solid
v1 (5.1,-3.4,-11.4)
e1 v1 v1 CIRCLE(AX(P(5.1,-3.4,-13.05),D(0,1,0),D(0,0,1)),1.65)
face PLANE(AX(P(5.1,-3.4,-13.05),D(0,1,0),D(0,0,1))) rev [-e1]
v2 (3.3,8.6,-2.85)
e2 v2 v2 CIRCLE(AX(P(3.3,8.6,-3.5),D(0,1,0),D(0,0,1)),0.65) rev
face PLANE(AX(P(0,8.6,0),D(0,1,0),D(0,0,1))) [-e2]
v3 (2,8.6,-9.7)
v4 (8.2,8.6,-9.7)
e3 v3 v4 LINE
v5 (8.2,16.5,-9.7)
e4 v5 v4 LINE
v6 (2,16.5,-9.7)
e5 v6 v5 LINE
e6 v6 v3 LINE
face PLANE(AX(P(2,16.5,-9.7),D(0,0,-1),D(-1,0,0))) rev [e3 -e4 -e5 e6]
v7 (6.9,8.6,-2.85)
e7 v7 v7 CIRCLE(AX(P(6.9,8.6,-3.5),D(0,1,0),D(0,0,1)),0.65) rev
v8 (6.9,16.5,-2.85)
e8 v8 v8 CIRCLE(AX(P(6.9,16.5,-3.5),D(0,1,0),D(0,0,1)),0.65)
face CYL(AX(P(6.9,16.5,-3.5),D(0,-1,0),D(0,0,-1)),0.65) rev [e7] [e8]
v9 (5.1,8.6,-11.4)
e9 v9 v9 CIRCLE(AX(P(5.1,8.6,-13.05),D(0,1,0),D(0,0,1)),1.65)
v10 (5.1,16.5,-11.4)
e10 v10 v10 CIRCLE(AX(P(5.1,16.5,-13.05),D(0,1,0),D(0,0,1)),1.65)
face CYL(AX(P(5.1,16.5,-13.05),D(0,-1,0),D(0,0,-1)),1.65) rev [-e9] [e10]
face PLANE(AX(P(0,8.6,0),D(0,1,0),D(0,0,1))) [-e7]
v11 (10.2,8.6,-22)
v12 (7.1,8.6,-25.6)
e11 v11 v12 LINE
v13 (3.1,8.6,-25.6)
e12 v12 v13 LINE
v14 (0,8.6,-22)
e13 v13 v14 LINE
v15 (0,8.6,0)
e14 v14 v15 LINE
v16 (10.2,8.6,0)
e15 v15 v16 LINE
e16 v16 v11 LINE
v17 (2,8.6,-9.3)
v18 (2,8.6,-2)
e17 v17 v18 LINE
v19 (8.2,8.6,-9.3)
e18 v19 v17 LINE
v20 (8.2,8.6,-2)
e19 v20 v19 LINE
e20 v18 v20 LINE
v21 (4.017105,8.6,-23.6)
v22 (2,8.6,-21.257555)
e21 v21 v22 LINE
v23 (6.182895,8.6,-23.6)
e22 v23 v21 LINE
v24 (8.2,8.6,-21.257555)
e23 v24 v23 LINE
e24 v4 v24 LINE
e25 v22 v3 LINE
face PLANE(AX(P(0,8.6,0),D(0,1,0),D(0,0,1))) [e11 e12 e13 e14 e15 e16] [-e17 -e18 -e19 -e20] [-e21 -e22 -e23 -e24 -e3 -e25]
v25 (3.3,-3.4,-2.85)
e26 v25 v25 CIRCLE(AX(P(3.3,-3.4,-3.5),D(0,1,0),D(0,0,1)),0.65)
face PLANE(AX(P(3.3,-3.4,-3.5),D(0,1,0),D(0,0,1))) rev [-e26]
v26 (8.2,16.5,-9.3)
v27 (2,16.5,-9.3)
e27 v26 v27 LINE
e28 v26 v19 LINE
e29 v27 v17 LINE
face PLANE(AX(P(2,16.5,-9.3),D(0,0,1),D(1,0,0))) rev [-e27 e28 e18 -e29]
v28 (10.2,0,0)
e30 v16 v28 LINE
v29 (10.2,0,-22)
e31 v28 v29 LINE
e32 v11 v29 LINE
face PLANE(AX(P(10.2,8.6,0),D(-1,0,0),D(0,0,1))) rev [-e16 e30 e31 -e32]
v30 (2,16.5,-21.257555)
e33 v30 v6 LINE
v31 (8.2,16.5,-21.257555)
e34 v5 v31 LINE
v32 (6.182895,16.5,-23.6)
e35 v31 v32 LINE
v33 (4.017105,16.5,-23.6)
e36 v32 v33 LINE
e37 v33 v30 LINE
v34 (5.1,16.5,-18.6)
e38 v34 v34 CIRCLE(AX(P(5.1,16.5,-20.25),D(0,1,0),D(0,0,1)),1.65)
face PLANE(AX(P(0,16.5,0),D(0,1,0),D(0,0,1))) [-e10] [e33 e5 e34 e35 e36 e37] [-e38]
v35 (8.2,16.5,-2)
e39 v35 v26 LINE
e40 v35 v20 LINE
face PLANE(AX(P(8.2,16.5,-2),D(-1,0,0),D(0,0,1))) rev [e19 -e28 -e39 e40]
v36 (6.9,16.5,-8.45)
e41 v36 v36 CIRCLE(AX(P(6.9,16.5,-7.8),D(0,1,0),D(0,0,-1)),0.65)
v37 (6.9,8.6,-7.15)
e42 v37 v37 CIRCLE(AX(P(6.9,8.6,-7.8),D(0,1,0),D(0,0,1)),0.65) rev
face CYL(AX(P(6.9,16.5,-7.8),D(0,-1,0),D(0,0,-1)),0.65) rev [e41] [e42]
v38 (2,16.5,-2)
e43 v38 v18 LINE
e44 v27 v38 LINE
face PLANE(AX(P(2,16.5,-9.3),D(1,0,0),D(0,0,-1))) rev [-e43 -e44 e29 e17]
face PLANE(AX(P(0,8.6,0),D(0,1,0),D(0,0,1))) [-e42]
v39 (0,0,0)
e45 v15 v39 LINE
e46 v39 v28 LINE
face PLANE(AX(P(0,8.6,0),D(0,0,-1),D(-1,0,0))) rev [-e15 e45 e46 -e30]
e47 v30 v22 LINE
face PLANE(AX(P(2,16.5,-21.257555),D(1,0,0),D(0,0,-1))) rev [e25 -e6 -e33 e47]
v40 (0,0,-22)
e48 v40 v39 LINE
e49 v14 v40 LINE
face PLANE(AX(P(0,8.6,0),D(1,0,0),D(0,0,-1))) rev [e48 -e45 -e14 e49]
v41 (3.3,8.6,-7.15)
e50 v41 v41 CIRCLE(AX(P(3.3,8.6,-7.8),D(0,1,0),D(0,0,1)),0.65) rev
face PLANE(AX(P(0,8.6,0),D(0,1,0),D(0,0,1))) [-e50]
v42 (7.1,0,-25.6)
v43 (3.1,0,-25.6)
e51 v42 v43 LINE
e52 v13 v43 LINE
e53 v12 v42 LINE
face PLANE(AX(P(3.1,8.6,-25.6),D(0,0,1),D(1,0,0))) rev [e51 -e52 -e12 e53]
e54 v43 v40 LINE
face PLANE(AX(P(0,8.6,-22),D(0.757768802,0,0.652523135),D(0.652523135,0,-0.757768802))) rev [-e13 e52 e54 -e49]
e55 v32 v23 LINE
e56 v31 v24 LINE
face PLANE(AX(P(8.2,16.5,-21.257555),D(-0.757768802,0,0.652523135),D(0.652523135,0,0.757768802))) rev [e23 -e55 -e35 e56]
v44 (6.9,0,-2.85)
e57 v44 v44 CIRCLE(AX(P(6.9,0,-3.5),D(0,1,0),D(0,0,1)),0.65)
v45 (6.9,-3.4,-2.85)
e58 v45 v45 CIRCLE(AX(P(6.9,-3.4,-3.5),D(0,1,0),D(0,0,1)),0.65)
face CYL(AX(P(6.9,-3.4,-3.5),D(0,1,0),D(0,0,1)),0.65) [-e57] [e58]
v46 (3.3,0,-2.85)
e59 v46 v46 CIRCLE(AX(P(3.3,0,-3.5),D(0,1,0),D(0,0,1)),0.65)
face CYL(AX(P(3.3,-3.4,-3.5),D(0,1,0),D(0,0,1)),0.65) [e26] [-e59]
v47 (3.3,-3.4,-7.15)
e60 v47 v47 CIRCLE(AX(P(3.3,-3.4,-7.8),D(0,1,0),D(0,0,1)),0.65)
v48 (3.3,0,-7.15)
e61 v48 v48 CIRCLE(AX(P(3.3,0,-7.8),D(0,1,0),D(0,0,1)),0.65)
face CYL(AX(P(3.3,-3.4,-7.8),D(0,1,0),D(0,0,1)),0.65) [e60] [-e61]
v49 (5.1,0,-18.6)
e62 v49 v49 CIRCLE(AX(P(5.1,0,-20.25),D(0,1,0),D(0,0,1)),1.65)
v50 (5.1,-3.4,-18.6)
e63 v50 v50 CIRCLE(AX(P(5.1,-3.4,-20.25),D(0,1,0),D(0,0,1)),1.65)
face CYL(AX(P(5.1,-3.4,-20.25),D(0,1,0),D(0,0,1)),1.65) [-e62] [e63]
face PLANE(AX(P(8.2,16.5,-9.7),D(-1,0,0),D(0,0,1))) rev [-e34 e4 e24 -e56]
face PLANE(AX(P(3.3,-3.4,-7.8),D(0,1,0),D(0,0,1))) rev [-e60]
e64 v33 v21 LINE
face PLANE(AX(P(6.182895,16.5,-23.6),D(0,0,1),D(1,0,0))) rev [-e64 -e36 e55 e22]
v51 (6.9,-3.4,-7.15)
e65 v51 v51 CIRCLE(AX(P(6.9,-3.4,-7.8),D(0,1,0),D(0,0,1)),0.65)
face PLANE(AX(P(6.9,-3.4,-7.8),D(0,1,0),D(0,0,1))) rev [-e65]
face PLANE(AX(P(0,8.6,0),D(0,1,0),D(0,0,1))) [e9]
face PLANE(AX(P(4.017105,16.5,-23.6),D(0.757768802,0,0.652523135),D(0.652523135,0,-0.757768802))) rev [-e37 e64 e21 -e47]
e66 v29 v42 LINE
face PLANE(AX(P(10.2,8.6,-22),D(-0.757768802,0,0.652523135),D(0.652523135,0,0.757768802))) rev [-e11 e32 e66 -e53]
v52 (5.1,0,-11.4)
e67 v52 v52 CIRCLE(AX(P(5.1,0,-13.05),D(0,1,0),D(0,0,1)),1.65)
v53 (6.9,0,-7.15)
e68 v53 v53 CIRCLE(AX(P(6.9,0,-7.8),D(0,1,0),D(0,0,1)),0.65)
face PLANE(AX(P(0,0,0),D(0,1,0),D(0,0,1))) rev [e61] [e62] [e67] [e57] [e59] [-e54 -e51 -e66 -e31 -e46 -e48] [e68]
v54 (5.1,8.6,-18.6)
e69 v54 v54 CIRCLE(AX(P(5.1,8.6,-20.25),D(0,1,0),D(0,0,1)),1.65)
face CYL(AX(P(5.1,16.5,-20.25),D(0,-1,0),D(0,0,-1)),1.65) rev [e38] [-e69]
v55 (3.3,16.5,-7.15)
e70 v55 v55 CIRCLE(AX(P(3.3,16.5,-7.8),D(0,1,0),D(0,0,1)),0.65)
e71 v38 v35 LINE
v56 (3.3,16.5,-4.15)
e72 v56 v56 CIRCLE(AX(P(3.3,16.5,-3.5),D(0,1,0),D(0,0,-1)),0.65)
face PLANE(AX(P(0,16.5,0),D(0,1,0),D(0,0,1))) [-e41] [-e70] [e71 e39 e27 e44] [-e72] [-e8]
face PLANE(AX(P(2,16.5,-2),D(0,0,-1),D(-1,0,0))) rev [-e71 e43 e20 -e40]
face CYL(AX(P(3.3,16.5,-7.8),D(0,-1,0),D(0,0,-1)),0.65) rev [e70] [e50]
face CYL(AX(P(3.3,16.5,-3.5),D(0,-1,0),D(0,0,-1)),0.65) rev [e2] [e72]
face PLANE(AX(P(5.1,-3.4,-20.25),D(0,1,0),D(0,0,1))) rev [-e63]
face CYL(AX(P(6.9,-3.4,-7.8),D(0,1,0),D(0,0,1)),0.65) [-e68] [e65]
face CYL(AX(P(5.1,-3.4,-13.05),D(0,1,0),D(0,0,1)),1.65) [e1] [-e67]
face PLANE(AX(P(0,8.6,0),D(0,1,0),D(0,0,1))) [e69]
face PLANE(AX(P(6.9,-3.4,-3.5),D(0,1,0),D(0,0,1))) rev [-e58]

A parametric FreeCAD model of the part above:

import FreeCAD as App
import Part
import Sketcher
Q = App.Units.Quantity

doc = App.newDocument("Part")
body = doc.addObject("PartDesign::Body", "Body")

# Sketch on XZ plane
sketch1 = body.newObject("Sketcher::SketchObject", "Sketch")
sketch1.AttachmentSupport = (doc.getObject("XZ_Plane"), [""])
sketch1.MapMode = "FlatFace"
sketch1.addGeometry([
    Part.LineSegment(App.Vector(0, -22, 0), App.Vector(0, 0, 0)),  # 0
    Part.LineSegment(App.Vector(0, 0, 0), App.Vector(10.2, 0, 0)),  # 1
    Part.LineSegment(App.Vector(10.2, 0, 0), App.Vector(10.2, -22, 0)),  # 2
    Part.LineSegment(App.Vector(10.2, -22, 0), App.Vector(7.1, -25.6, 0)),  # 3
    Part.LineSegment(App.Vector(7.1, -25.6, 0), App.Vector(3.1, -25.6, 0)),  # 4
    Part.LineSegment(App.Vector(3.1, -25.6, 0), App.Vector(0, -22, 0)),  # 5
], False)
sketch1.addConstraint([
    Sketcher.Constraint("Coincident", 0, 2, 1, 1),
    Sketcher.Constraint("Coincident", 1, 2, 2, 1),
    Sketcher.Constraint("Coincident", 2, 2, 3, 1),
    Sketcher.Constraint("Coincident", 3, 2, 4, 1),
    Sketcher.Constraint("Coincident", 4, 2, 5, 1),
    Sketcher.Constraint("Coincident", 5, 2, 0, 1),
    Sketcher.Constraint("Vertical", 0),
    Sketcher.Constraint("Horizontal", 1),
    Sketcher.Constraint("Vertical", 2),
    Sketcher.Constraint("Horizontal", 4),
    Sketcher.Constraint("Coincident", 0, 2, -1, 1),
    Sketcher.Constraint("Horizontal", 2, 2, 5, 2),
    Sketcher.Constraint("Equal", 3, 5),
    Sketcher.Constraint("DistanceX", 4, 2, 4, 1, Q("4 mm")),
    Sketcher.Constraint("DistanceY", 0, 1, 0, 2, Q("22 mm")),
    Sketcher.Constraint("DistanceX", 1, 1, 1, 2, Q("10.2 mm")),
    Sketcher.Constraint("DistanceY", 3, 2, -1, 1, Q("25.6 mm")),
])
pad1 = body.newObject("PartDesign::Pad", "Pad")
pad1.Profile = sketch1
pad1.Length = 8.6
pad1.Reversed = True

# Sketch on XZ plane
sketch2 = body.newObject("Sketcher::SketchObject", "Sketch001")
sketch2.AttachmentSupport = (doc.getObject("XZ_Plane"), [""])
sketch2.MapMode = "FlatFace"
sketch2.AttachmentOffset = App.Placement(App.Vector(0, 0, -8.6), App.Rotation())
sketch2.addGeometry([
    Part.LineSegment(App.Vector(2, -9.7, 0), App.Vector(8.2, -9.7, 0)),  # 0
    Part.LineSegment(App.Vector(8.2, -9.7, 0), App.Vector(8.2, -21.3, 0)),  # 1
    Part.LineSegment(App.Vector(8.2, -21.3, 0), App.Vector(6.2, -23.6, 0)),  # 2
    Part.LineSegment(App.Vector(6.2, -23.6, 0), App.Vector(4, -23.6, 0)),  # 3
    Part.LineSegment(App.Vector(4, -23.6, 0), App.Vector(2, -21.3, 0)),  # 4
    Part.LineSegment(App.Vector(2, -21.3, 0), App.Vector(2, -9.7, 0)),  # 5
    Part.Circle(App.Vector(5.1, -13.1, 0), App.Vector(0, 0, 1), 1.6),  # 6
    Part.Circle(App.Vector(5.1, -20.2, 0), App.Vector(0, 0, 1), 1.6),  # 7
    Part.LineSegment(App.Vector(2, -9.3, 0), App.Vector(2, -2, 0)),  # 8
    Part.LineSegment(App.Vector(2, -2, 0), App.Vector(8.2, -2, 0)),  # 9
    Part.LineSegment(App.Vector(8.2, -2, 0), App.Vector(8.2, -9.3, 0)),  # 10
    Part.LineSegment(App.Vector(8.2, -9.3, 0), App.Vector(2, -9.3, 0)),  # 11
    Part.Circle(App.Vector(3.3, -3.5, 0), App.Vector(0, 0, 1), 0.7),  # 12
    Part.Circle(App.Vector(6.9, -3.5, 0), App.Vector(0, 0, 1), 0.7),  # 13
    Part.Circle(App.Vector(3.3, -7.8, 0), App.Vector(0, 0, 1), 0.7),  # 14
    Part.Circle(App.Vector(6.9, -7.8, 0), App.Vector(0, 0, 1), 0.7),  # 15
], False)
sketch2.addConstraint([
    Sketcher.Constraint("Coincident", 0, 2, 1, 1),
    Sketcher.Constraint("Coincident", 1, 2, 2, 1),
    Sketcher.Constraint("Coincident", 2, 2, 3, 1),
    Sketcher.Constraint("Coincident", 3, 2, 4, 1),
    Sketcher.Constraint("Coincident", 4, 2, 5, 1),
    Sketcher.Constraint("Coincident", 5, 2, 0, 1),
    Sketcher.Constraint("Coincident", 8, 2, 9, 1),
    Sketcher.Constraint("Coincident", 9, 2, 10, 1),
    Sketcher.Constraint("Coincident", 10, 2, 11, 1),
    Sketcher.Constraint("Coincident", 11, 2, 8, 1),
    Sketcher.Constraint("Horizontal", 0),
    Sketcher.Constraint("Vertical", 1),
    Sketcher.Constraint("Horizontal", 3),
    Sketcher.Constraint("Vertical", 5),
    Sketcher.Constraint("Vertical", 8),
    Sketcher.Constraint("Horizontal", 9),
    Sketcher.Constraint("Vertical", 10),
    Sketcher.Constraint("Horizontal", 11),
    Sketcher.Constraint("Equal", 6, 7),
    Sketcher.Constraint("Equal", 12, 13),
    Sketcher.Constraint("Equal", 13, 14),
    Sketcher.Constraint("Equal", 14, 15),
    Sketcher.Constraint("Horizontal", 12, 3, 13, 3),
    Sketcher.Constraint("Horizontal", 14, 3, 15, 3),
    Sketcher.Constraint("Horizontal", 1, 2, 4, 2),
    Sketcher.Constraint("Vertical", 6, 3, 7, 3),
    Sketcher.Constraint("Vertical", 12, 3, 14, 3),
    Sketcher.Constraint("Vertical", 13, 3, 15, 3),
    Sketcher.Constraint("Vertical", 5, 2, 8, 2),
    Sketcher.Constraint("Vertical", 1, 2, 9, 2),
    Sketcher.Constraint("Equal", 2, 4),
    Sketcher.Constraint("Diameter", 6, Q("3.3 mm")),
    Sketcher.Constraint("Diameter", 12, Q("1.3 mm")),
    Sketcher.Constraint("DistanceX", 0, 1, 0, 2, Q("6.2 mm")),
    Sketcher.Constraint("DistanceY", 8, 1, 8, 2, Q("7.3 mm")),
    Sketcher.Constraint("DistanceX", -1, 1, 4, 2, Q("2 mm")),
    Sketcher.Constraint("DistanceY", 8, 2, -1, 1, Q("2 mm")),
    Sketcher.Constraint("DistanceX", -1, 1, 6, 3, Q("5.1 mm")),
    Sketcher.Constraint("DistanceX", -1, 1, 12, 3, Q("3.3 mm")),
    Sketcher.Constraint("DistanceY", 12, 3, -1, 1, Q("3.5 mm")),
    Sketcher.Constraint("DistanceX", -1, 1, 13, 3, Q("6.9 mm")),
    Sketcher.Constraint("DistanceY", 14, 3, -1, 1, Q("7.8 mm")),
    Sketcher.Constraint("DistanceY", 0, 2, -1, 1, Q("9.7 mm")),
    Sketcher.Constraint("DistanceY", 2, 2, -1, 1, Q("23.6 mm")),
    Sketcher.Constraint("DistanceY", 7, 3, 6, 3, Q("7.2 mm")),
    Sketcher.Constraint("DistanceY", 6, 3, -1, 1, Q("13.05 mm")),
    Sketcher.Constraint("DistanceX", 3, 2, 3, 1, Q("2.16579 mm")),
    Sketcher.Constraint("Distance", 2, Q("3.091239 mm")),
])
pad2 = body.newObject("PartDesign::Pad", "Pad001")
pad2.Profile = sketch2
pad2.Length = 7.9
pad2.Reversed = True

# Sketch on XZ plane
sketch3 = body.newObject("Sketcher::SketchObject", "Sketch002")
sketch3.AttachmentSupport = (doc.getObject("XZ_Plane"), [""])
sketch3.MapMode = "FlatFace"
sketch3.AttachmentOffset = App.Placement(App.Vector(0, 0, -8.6), App.Rotation())
sketch3.addGeometry([
    Part.Circle(App.Vector(5.1, -20.2, 0), App.Vector(0, 0, 1), 1.6),  # 0
    Part.Circle(App.Vector(5.1, -13.1, 0), App.Vector(0, 0, 1), 1.6),  # 1
    Part.Circle(App.Vector(3.3, -7.8, 0), App.Vector(0, 0, 1), 0.7),  # 2
    Part.Circle(App.Vector(6.9, -7.8, 0), App.Vector(0, 0, 1), 0.7),  # 3
    Part.Circle(App.Vector(6.9, -3.5, 0), App.Vector(0, 0, 1), 0.7),  # 4
    Part.Circle(App.Vector(3.3, -3.5, 0), App.Vector(0, 0, 1), 0.7),  # 5
], False)
sketch3.addConstraint([
    Sketcher.Constraint("Equal", 0, 1),
    Sketcher.Constraint("Equal", 2, 3),
    Sketcher.Constraint("Equal", 3, 4),
    Sketcher.Constraint("Equal", 4, 5),
    Sketcher.Constraint("Horizontal", 2, 3, 3, 3),
    Sketcher.Constraint("Horizontal", 4, 3, 5, 3),
    Sketcher.Constraint("Vertical", 0, 3, 1, 3),
    Sketcher.Constraint("Vertical", 3, 3, 4, 3),
    Sketcher.Constraint("Vertical", 2, 3, 5, 3),
    Sketcher.Constraint("Diameter", 0, Q("3.3 mm")),
    Sketcher.Constraint("Diameter", 2, Q("1.3 mm")),
    Sketcher.Constraint("DistanceX", -1, 1, 0, 3, Q("5.1 mm")),
    Sketcher.Constraint("DistanceX", -1, 1, 2, 3, Q("3.3 mm")),
    Sketcher.Constraint("DistanceY", 2, 3, -1, 1, Q("7.8 mm")),
    Sketcher.Constraint("DistanceX", -1, 1, 3, 3, Q("6.9 mm")),
    Sketcher.Constraint("DistanceY", 4, 3, -1, 1, Q("3.5 mm")),
    Sketcher.Constraint("DistanceY", 0, 3, 1, 3, Q("7.2 mm")),
    Sketcher.Constraint("DistanceY", 0, 3, -1, 1, Q("20.25 mm")),
])
pad3 = body.newObject("PartDesign::Pad", "Pad002")
pad3.Profile = sketch3
pad3.Length = 12

doc.recompute()
